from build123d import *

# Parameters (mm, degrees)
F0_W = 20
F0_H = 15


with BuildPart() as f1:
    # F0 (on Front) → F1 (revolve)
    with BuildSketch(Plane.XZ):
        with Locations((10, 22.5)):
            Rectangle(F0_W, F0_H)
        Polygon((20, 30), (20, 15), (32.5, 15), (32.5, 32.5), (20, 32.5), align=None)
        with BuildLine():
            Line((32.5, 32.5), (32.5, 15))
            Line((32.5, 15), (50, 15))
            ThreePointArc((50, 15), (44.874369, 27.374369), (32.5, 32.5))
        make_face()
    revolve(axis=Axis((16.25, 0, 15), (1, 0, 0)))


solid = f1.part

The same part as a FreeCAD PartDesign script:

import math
import FreeCAD as App
import Part
import Sketcher

doc = App.newDocument("Part")
body = doc.addObject("PartDesign::Body", "Body")

# Sketch on XZ plane
sketch1 = body.newObject("Sketcher::SketchObject", "Sketch")
sketch1.AttachmentSupport = (doc.getObject("XZ_Plane"), [""])
sketch1.MapMode = "FlatFace"
sketch1.addGeometry([
    Part.LineSegment(App.Vector(0, 30, 0), App.Vector(0, 15, 0)),  # 0
    Part.LineSegment(App.Vector(0, 15, 0), App.Vector(50, 15, 0)),  # 1
    Part.ArcOfCircle(Part.Circle(App.Vector(32.500001, 15.000001, 0), App.Vector(0, 0, 1), 17.499999), math.radians(-0.000004), math.radians(90.000004)),  # 2
    Part.LineSegment(App.Vector(32.5, 32.5, 0), App.Vector(20, 32.5, 0)),  # 3
    Part.LineSegment(App.Vector(20, 32.5, 0), App.Vector(20, 30, 0)),  # 4
    Part.LineSegment(App.Vector(20, 30, 0), App.Vector(0, 30, 0)),  # 5
], False)
sketch1.addGeometry(Part.LineSegment(App.Vector(0, 15, 0), App.Vector(50, 15, 0)), True)  # axis
sketch1.addConstraint([
    Sketcher.Constraint("Coincident", 0, 2, 1, 1),
    Sketcher.Constraint("Coincident", 1, 2, 2, 1),
    Sketcher.Constraint("Tangent", 2, 2, 3, 1),
    Sketcher.Constraint("Coincident", 3, 2, 4, 1),
    Sketcher.Constraint("Coincident", 4, 2, 5, 1),
    Sketcher.Constraint("Coincident", 5, 2, 0, 1),
    Sketcher.Constraint("Vertical", 0),
    Sketcher.Constraint("Horizontal", 1),
    Sketcher.Constraint("Horizontal", 3),
    Sketcher.Constraint("Vertical", 4),
    Sketcher.Constraint("Horizontal", 5),
    Sketcher.Constraint("Horizontal", 6),
    Sketcher.Constraint("Coincident", 6, 1, 0, 2),
    Sketcher.Constraint("PointOnObject", 0, 2, -2),
    Sketcher.Constraint("Horizontal", 2, 3, 0, 2),
    Sketcher.Constraint("Equal", 1, 6),
    Sketcher.Constraint("Radius", 2, 17.499999),
    Sketcher.Constraint("DistanceX", 1, 1, 1, 2, 50.0),
    Sketcher.Constraint("DistanceX", 5, 2, 5, 1, 20.0),
    Sketcher.Constraint("DistanceY", 0, 2, 0, 1, 15.0),
    Sketcher.Constraint("DistanceY", -1, 1, 2, 3, 15.000001),
])
revolution = body.newObject("PartDesign::Revolution", "Revolution")
revolution.Profile = sketch1
revolution.ReferenceAxis = (sketch1, ["Axis0"])
revolution.Angle = 360

doc.recompute()
